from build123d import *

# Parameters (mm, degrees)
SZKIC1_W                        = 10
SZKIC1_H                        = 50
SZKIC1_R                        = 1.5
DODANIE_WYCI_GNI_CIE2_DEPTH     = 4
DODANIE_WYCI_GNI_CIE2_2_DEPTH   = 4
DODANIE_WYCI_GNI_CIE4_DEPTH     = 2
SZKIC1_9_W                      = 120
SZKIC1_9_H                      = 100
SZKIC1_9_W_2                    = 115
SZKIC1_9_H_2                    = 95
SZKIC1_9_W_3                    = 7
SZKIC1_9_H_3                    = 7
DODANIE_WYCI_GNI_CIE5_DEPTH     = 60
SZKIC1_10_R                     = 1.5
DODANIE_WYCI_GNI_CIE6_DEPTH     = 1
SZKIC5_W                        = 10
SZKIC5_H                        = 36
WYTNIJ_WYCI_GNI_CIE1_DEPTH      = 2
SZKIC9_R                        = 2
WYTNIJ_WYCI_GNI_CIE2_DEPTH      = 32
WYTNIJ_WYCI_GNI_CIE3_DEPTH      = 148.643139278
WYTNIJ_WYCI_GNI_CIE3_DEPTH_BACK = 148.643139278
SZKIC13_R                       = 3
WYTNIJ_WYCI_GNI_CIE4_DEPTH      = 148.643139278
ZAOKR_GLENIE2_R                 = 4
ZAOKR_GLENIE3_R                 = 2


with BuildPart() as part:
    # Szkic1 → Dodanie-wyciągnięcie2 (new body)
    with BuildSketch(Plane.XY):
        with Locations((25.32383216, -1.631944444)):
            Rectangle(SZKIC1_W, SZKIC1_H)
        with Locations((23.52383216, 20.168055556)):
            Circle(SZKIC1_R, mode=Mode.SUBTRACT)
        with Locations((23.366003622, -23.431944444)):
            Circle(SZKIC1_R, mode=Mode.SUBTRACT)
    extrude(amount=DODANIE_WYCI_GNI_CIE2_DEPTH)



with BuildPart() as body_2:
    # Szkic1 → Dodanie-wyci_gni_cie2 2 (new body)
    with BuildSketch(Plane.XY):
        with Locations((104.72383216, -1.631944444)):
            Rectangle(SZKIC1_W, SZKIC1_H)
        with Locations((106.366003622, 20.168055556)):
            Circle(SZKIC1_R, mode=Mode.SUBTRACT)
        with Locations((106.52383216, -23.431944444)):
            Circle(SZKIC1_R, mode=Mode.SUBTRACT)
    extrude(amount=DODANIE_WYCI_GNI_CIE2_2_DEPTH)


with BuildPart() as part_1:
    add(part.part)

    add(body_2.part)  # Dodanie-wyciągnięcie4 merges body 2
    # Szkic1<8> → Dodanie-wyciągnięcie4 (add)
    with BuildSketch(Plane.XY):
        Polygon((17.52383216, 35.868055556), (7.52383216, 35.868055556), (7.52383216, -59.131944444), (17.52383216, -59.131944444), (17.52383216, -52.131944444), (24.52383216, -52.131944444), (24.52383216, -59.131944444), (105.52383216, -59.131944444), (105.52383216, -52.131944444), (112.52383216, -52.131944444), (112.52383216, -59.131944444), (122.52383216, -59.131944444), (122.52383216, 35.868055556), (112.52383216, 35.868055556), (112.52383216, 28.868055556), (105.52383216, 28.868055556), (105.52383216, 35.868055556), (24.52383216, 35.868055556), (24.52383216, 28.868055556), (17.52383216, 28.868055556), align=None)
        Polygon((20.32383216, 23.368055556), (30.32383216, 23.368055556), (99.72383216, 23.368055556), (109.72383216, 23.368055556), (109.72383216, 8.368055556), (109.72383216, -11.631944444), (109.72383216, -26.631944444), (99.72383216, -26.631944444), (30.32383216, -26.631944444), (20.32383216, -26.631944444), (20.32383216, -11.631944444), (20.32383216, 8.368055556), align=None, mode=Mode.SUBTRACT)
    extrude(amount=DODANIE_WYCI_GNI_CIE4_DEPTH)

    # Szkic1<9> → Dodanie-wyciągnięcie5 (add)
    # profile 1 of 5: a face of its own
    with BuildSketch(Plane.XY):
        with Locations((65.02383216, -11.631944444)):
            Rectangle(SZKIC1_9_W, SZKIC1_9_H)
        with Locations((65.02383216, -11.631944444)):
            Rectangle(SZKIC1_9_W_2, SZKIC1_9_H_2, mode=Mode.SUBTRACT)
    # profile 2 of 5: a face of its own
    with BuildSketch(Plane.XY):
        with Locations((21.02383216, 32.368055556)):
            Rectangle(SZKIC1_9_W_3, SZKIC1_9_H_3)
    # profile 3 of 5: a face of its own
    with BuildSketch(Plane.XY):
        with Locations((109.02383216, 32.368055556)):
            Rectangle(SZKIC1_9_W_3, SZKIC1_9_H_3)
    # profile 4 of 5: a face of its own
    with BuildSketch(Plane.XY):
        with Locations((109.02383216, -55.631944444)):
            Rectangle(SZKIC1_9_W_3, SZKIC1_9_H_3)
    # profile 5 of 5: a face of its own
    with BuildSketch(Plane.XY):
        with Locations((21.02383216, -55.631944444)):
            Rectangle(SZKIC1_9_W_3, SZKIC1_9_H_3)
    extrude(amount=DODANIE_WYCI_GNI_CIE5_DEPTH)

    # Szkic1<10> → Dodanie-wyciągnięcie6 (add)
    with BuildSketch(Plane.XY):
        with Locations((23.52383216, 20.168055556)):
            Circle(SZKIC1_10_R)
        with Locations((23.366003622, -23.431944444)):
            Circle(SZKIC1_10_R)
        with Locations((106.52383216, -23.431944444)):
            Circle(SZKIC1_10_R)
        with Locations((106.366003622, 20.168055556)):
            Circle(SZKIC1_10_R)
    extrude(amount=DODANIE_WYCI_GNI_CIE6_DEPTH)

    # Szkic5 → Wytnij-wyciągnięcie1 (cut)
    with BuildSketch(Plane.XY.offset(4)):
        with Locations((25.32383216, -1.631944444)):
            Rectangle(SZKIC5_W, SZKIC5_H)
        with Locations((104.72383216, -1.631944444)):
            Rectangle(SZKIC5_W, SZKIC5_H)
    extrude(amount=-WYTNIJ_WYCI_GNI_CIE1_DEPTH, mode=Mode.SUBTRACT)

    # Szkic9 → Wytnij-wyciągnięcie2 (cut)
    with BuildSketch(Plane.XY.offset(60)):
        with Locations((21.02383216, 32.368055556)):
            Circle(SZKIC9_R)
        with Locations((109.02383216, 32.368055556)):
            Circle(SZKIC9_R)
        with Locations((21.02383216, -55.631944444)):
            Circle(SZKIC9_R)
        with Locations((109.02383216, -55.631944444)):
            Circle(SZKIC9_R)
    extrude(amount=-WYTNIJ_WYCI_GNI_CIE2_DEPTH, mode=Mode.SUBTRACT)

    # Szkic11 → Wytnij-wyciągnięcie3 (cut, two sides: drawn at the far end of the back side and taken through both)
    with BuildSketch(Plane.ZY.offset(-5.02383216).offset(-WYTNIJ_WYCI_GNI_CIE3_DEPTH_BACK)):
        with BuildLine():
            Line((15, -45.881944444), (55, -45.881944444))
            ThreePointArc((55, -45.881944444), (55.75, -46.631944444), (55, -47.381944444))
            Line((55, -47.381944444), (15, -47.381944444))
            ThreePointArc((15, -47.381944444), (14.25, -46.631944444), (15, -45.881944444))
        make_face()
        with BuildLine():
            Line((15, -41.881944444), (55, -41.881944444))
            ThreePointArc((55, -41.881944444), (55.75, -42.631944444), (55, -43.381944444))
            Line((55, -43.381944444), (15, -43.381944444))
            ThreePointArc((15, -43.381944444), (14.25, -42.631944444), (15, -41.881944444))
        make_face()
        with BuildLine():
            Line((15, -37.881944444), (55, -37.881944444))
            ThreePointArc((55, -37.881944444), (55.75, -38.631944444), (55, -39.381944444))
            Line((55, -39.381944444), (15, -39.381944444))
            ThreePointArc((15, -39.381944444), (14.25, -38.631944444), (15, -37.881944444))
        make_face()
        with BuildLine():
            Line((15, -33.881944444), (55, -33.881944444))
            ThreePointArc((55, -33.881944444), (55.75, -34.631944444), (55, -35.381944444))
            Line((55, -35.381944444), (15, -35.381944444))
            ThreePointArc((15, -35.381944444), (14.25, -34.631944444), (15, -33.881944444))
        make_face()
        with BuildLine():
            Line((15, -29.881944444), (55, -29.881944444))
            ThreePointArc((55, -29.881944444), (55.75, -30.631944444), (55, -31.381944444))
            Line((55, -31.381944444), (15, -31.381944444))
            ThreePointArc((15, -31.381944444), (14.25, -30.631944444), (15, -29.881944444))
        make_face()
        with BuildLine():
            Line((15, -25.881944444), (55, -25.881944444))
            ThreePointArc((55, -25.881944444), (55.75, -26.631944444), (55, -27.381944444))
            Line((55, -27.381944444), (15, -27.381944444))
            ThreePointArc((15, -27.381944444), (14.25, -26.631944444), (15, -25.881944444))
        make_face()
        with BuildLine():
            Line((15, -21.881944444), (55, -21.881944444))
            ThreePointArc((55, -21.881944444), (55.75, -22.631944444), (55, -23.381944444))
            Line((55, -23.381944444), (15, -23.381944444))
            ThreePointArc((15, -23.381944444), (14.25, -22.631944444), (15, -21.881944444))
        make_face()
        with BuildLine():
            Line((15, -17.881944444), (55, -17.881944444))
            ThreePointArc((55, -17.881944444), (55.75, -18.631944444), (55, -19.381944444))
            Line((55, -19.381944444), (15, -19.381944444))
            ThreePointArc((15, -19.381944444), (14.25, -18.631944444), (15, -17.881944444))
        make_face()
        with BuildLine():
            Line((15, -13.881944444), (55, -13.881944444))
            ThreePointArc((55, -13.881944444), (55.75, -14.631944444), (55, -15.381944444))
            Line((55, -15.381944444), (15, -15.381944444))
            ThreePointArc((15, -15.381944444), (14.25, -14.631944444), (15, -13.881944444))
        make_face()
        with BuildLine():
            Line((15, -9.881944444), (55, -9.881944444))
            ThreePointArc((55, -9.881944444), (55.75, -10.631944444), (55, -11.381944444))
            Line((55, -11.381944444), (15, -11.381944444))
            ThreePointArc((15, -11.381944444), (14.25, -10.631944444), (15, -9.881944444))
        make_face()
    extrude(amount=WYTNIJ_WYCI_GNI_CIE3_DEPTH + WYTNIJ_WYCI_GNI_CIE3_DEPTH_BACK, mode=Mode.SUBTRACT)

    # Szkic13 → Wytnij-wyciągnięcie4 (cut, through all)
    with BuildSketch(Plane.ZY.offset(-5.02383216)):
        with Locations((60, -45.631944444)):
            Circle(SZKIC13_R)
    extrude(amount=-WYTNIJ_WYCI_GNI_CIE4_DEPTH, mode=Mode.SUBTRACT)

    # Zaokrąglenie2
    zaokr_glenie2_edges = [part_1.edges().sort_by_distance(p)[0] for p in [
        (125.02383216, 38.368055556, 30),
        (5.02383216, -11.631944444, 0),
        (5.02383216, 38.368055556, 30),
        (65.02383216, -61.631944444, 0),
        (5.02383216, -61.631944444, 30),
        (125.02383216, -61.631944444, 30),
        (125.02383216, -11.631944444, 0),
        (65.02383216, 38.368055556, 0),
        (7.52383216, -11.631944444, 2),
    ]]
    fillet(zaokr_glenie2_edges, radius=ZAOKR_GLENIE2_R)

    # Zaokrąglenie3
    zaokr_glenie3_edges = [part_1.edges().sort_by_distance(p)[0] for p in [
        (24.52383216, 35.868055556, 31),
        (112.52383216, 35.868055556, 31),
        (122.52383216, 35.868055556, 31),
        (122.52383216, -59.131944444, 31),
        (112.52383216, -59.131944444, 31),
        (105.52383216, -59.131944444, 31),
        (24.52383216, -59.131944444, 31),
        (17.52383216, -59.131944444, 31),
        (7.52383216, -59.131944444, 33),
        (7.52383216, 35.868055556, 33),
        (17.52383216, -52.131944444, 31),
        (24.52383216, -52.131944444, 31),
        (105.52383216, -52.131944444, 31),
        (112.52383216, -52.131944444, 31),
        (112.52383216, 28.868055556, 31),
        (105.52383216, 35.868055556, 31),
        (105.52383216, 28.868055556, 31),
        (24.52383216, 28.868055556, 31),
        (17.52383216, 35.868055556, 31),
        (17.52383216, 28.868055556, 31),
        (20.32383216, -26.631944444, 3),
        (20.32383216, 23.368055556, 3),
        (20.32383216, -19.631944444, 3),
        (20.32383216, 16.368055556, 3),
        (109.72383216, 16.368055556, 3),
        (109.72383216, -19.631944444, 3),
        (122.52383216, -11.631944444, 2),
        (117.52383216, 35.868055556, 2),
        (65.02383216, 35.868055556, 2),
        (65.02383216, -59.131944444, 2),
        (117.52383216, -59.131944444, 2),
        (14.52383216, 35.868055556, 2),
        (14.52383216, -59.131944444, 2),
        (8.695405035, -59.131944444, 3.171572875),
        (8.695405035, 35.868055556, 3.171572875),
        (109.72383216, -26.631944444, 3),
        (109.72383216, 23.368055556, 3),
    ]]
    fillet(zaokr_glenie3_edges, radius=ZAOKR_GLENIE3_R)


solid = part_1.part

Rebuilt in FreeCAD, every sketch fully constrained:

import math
import FreeCAD as App
import Part
import Sketcher
from FreeCAD import Vector
Q = App.Units.Quantity


def edges_at(feature, points):
    """Names of the edges that pass closest to the given points."""
    edges = feature.Shape.Edges
    near = lambda p: min(range(len(edges)), key=lambda i: edges[i].distToShape(Part.Vertex(*p))[0])
    return sorted({f"Edge{near(p) + 1}" for p in points})

doc = App.newDocument("Part")
body = doc.addObject("PartDesign::Body", "Body")

sketch1 = doc.addObject("Sketcher::SketchObject", "Sketch")
body.addObject(sketch1)
sketch1.AttachmentSupport = (doc.XY_Plane, [""])
sketch1.MapMode = "FlatFace"
sketch1.addGeometry(Part.LineSegment(Vector(20.3, 23.4, 0), Vector(20.3, -26.6, 0)), False)
sketch1.addGeometry(Part.LineSegment(Vector(20.3, -26.6, 0), Vector(30.3, -26.6, 0)), False)
sketch1.addGeometry(Part.LineSegment(Vector(30.3, -26.6, 0), Vector(30.3, 23.4, 0)), False)
sketch1.addGeometry(Part.LineSegment(Vector(30.3, 23.4, 0), Vector(20.3, 23.4, 0)), False)
sketch1.addGeometry(Part.Circle(Vector(23.4, -23.4, 0), Vector(0, 0, 1), 1.5), False)
sketch1.addGeometry(Part.Circle(Vector(23.5, 20.2, 0), Vector(0, 0, 1), 1.5), False)
sketch1.addConstraint(Sketcher.Constraint("Coincident", 0, 2, 1, 1))
sketch1.addConstraint(Sketcher.Constraint("Coincident", 1, 2, 2, 1))
sketch1.addConstraint(Sketcher.Constraint("Coincident", 2, 2, 3, 1))
sketch1.addConstraint(Sketcher.Constraint("Coincident", 3, 2, 0, 1))
sketch1.addConstraint(Sketcher.Constraint("Vertical", 0))
sketch1.addConstraint(Sketcher.Constraint("Horizontal", 1))
sketch1.addConstraint(Sketcher.Constraint("Vertical", 2))
sketch1.addConstraint(Sketcher.Constraint("Horizontal", 3))
sketch1.addConstraint(Sketcher.Constraint("Equal", 4, 5))
sketch1.addConstraint(Sketcher.Constraint("Diameter", 4, Q("3 mm")))
sketch1.addConstraint(Sketcher.Constraint("DistanceX", 1, 1, 1, 2, Q("10 mm")))
sketch1.addConstraint(Sketcher.Constraint("DistanceY", 0, 2, 0, 1, Q("50 mm")))
sketch1.addConstraint(Sketcher.Constraint("DistanceY", 4, 3, 5, 3, Q("43.6 mm")))
sketch1.addConstraint(Sketcher.Constraint("DistanceY", 0, 2, 4, 3, Q("3.2 mm")))
sketch1.addConstraint(Sketcher.Constraint("DistanceX", 0, 2, 5, 3, Q("3.2 mm")))
sketch1.addConstraint(Sketcher.Constraint("DistanceX", 4, 3, 5, 3, Q("0.157829 mm")))
sketch1.addConstraint(Sketcher.Constraint("DistanceX", -1, 1, 4, 3, Q("23.366004 mm")))
sketch1.addConstraint(Sketcher.Constraint("DistanceY", 4, 3, -1, 1, Q("23.431944 mm")))
pad1 = doc.addObject("PartDesign::Pad", "Pad")
body.addObject(pad1)
pad1.Profile = sketch1
pad1.Length = 4
body2 = doc.addObject("PartDesign::Body", "Body001")

sketch2 = doc.addObject("Sketcher::SketchObject", "Sketch001")
body2.addObject(sketch2)
sketch2.AttachmentSupport = (doc.getObject("XY_Plane001"), [""])
sketch2.MapMode = "FlatFace"
sketch2.addGeometry(Part.LineSegment(Vector(99.7, 23.4, 0), Vector(99.7, -26.6, 0)), False)
sketch2.addGeometry(Part.LineSegment(Vector(99.7, -26.6, 0), Vector(109.7, -26.6, 0)), False)
sketch2.addGeometry(Part.LineSegment(Vector(109.7, -26.6, 0), Vector(109.7, 23.4, 0)), False)
sketch2.addGeometry(Part.LineSegment(Vector(109.7, 23.4, 0), Vector(99.7, 23.4, 0)), False)
sketch2.addGeometry(Part.Circle(Vector(106.5, -23.4, 0), Vector(0, 0, 1), 1.5), False)
sketch2.addGeometry(Part.Circle(Vector(106.4, 20.2, 0), Vector(0, 0, 1), 1.5), False)
sketch2.addConstraint(Sketcher.Constraint("Coincident", 0, 2, 1, 1))
sketch2.addConstraint(Sketcher.Constraint("Coincident", 1, 2, 2, 1))
sketch2.addConstraint(Sketcher.Constraint("Coincident", 2, 2, 3, 1))
sketch2.addConstraint(Sketcher.Constraint("Coincident", 3, 2, 0, 1))
sketch2.addConstraint(Sketcher.Constraint("Vertical", 0))
sketch2.addConstraint(Sketcher.Constraint("Horizontal", 1))
sketch2.addConstraint(Sketcher.Constraint("Vertical", 2))
sketch2.addConstraint(Sketcher.Constraint("Horizontal", 3))
sketch2.addConstraint(Sketcher.Constraint("Equal", 4, 5))
sketch2.addConstraint(Sketcher.Constraint("Diameter", 4, Q("3 mm")))
sketch2.addConstraint(Sketcher.Constraint("DistanceX", 1, 1, 1, 2, Q("10 mm")))
sketch2.addConstraint(Sketcher.Constraint("DistanceY", 0, 2, 0, 1, Q("50 mm")))
sketch2.addConstraint(Sketcher.Constraint("DistanceY", 4, 3, 5, 3, Q("43.6 mm")))
sketch2.addConstraint(Sketcher.Constraint("DistanceX", 0, 2, 4, 3, Q("6.8 mm")))
sketch2.addConstraint(Sketcher.Constraint("DistanceY", 0, 2, 4, 3, Q("3.2 mm")))
sketch2.addConstraint(Sketcher.Constraint("DistanceX", 5, 3, 4, 3, Q("0.157829 mm")))
sketch2.addConstraint(Sketcher.Constraint("DistanceX", -1, 1, 4, 3, Q("106.523832 mm")))
sketch2.addConstraint(Sketcher.Constraint("DistanceY", 4, 3, -1, 1, Q("23.431944 mm")))
pad2 = doc.addObject("PartDesign::Pad", "Pad001")
body2.addObject(pad2)
pad2.Profile = sketch2
pad2.Length = 4
body.AllowCompound = True
doc.recompute()

boolean = doc.addObject("PartDesign::Boolean", "Boolean")
body.addObject(boolean)
boolean.Type = "Fuse"
boolean.addObjects([body2])

sketch3 = doc.addObject("Sketcher::SketchObject", "Sketch002")
body.addObject(sketch3)
sketch3.AttachmentSupport = (doc.XY_Plane, [""])
sketch3.MapMode = "FlatFace"
sketch3.addGeometry(Part.LineSegment(Vector(18, 36, 0), Vector(8, 36, 0)), False)
sketch3.addGeometry(Part.LineSegment(Vector(8, 36, 0), Vector(8, -59, 0)), False)
sketch3.addGeometry(Part.LineSegment(Vector(8, -59, 0), Vector(18, -59, 0)), False)
sketch3.addGeometry(Part.LineSegment(Vector(18, -59, 0), Vector(18, -52, 0)), False)
sketch3.addGeometry(Part.LineSegment(Vector(18, -52, 0), Vector(25, -52, 0)), False)
sketch3.addGeometry(Part.LineSegment(Vector(25, -52, 0), Vector(25, -59, 0)), False)
sketch3.addGeometry(Part.LineSegment(Vector(25, -59, 0), Vector(106, -59, 0)), False)
sketch3.addGeometry(Part.LineSegment(Vector(106, -59, 0), Vector(106, -52, 0)), False)
sketch3.addGeometry(Part.LineSegment(Vector(106, -52, 0), Vector(113, -52, 0)), False)
sketch3.addGeometry(Part.LineSegment(Vector(113, -52, 0), Vector(113, -59, 0)), False)
sketch3.addGeometry(Part.LineSegment(Vector(113, -59, 0), Vector(123, -59, 0)), False)
sketch3.addGeometry(Part.LineSegment(Vector(123, -59, 0), Vector(123, 36, 0)), False)
sketch3.addGeometry(Part.LineSegment(Vector(123, 36, 0), Vector(113, 36, 0)), False)
sketch3.addGeometry(Part.LineSegment(Vector(113, 36, 0), Vector(113, 29, 0)), False)
sketch3.addGeometry(Part.LineSegment(Vector(113, 29, 0), Vector(106, 29, 0)), False)
sketch3.addGeometry(Part.LineSegment(Vector(106, 29, 0), Vector(106, 36, 0)), False)
sketch3.addGeometry(Part.LineSegment(Vector(106, 36, 0), Vector(25, 36, 0)), False)
sketch3.addGeometry(Part.LineSegment(Vector(25, 36, 0), Vector(25, 29, 0)), False)
sketch3.addGeometry(Part.LineSegment(Vector(25, 29, 0), Vector(18, 29, 0)), False)
sketch3.addGeometry(Part.LineSegment(Vector(18, 29, 0), Vector(18, 36, 0)), False)
sketch3.addGeometry(Part.LineSegment(Vector(20, -27, 0), Vector(20, 23, 0)), False)
sketch3.addGeometry(Part.LineSegment(Vector(20, 23, 0), Vector(110, 23, 0)), False)
sketch3.addGeometry(Part.LineSegment(Vector(110, 23, 0), Vector(110, -27, 0)), False)
sketch3.addGeometry(Part.LineSegment(Vector(110, -27, 0), Vector(20, -27, 0)), False)
sketch3.addConstraint(Sketcher.Constraint("Coincident", 0, 2, 1, 1))
sketch3.addConstraint(Sketcher.Constraint("Coincident", 1, 2, 2, 1))
sketch3.addConstraint(Sketcher.Constraint("Coincident", 2, 2, 3, 1))
sketch3.addConstraint(Sketcher.Constraint("Coincident", 3, 2, 4, 1))
sketch3.addConstraint(Sketcher.Constraint("Coincident", 4, 2, 5, 1))
sketch3.addConstraint(Sketcher.Constraint("Coincident", 5, 2, 6, 1))
sketch3.addConstraint(Sketcher.Constraint("Coincident", 6, 2, 7, 1))
sketch3.addConstraint(Sketcher.Constraint("Coincident", 7, 2, 8, 1))
sketch3.addConstraint(Sketcher.Constraint("Coincident", 8, 2, 9, 1))
sketch3.addConstraint(Sketcher.Constraint("Coincident", 9, 2, 10, 1))
sketch3.addConstraint(Sketcher.Constraint("Coincident", 10, 2, 11, 1))
sketch3.addConstraint(Sketcher.Constraint("Coincident", 11, 2, 12, 1))
sketch3.addConstraint(Sketcher.Constraint("Coincident", 12, 2, 13, 1))
sketch3.addConstraint(Sketcher.Constraint("Coincident", 13, 2, 14, 1))
sketch3.addConstraint(Sketcher.Constraint("Coincident", 14, 2, 15, 1))
sketch3.addConstraint(Sketcher.Constraint("Coincident", 15, 2, 16, 1))
sketch3.addConstraint(Sketcher.Constraint("Coincident", 16, 2, 17, 1))
sketch3.addConstraint(Sketcher.Constraint("Coincident", 17, 2, 18, 1))
sketch3.addConstraint(Sketcher.Constraint("Coincident", 18, 2, 19, 1))
sketch3.addConstraint(Sketcher.Constraint("Coincident", 19, 2, 0, 1))
sketch3.addConstraint(Sketcher.Constraint("Coincident", 20, 2, 21, 1))
sketch3.addConstraint(Sketcher.Constraint("Coincident", 21, 2, 22, 1))
sketch3.addConstraint(Sketcher.Constraint("Coincident", 22, 2, 23, 1))
sketch3.addConstraint(Sketcher.Constraint("Coincident", 23, 2, 20, 1))
sketch3.addConstraint(Sketcher.Constraint("Horizontal", 0))
sketch3.addConstraint(Sketcher.Constraint("Vertical", 1))
sketch3.addConstraint(Sketcher.Constraint("Horizontal", 2))
sketch3.addConstraint(Sketcher.Constraint("Vertical", 3))
sketch3.addConstraint(Sketcher.Constraint("Horizontal", 4))
sketch3.addConstraint(Sketcher.Constraint("Vertical", 5))
sketch3.addConstraint(Sketcher.Constraint("Horizontal", 6))
sketch3.addConstraint(Sketcher.Constraint("Vertical", 7))
sketch3.addConstraint(Sketcher.Constraint("Horizontal", 8))
sketch3.addConstraint(Sketcher.Constraint("Vertical", 9))
sketch3.addConstraint(Sketcher.Constraint("Horizontal", 10))
sketch3.addConstraint(Sketcher.Constraint("Vertical", 11))
sketch3.addConstraint(Sketcher.Constraint("Horizontal", 12))
sketch3.addConstraint(Sketcher.Constraint("Vertical", 13))
sketch3.addConstraint(Sketcher.Constraint("Horizontal", 14))
sketch3.addConstraint(Sketcher.Constraint("Vertical", 15))
sketch3.addConstraint(Sketcher.Constraint("Horizontal", 16))
sketch3.addConstraint(Sketcher.Constraint("Vertical", 17))
sketch3.addConstraint(Sketcher.Constraint("Horizontal", 18))
sketch3.addConstraint(Sketcher.Constraint("Vertical", 19))
sketch3.addConstraint(Sketcher.Constraint("Vertical", 20))
sketch3.addConstraint(Sketcher.Constraint("Horizontal", 21))
sketch3.addConstraint(Sketcher.Constraint("Vertical", 22))
sketch3.addConstraint(Sketcher.Constraint("Horizontal", 23))
sketch3.addConstraint(Sketcher.Constraint("Horizontal", 2, 2, 5, 2))
sketch3.addConstraint(Sketcher.Constraint("Horizontal", 4, 2, 7, 2))
sketch3.addConstraint(Sketcher.Constraint("Horizontal", 6, 2, 9, 2))
sketch3.addConstraint(Sketcher.Constraint("Horizontal", 0, 2, 11, 2))
sketch3.addConstraint(Sketcher.Constraint("Horizontal", 12, 2, 15, 2))
sketch3.addConstraint(Sketcher.Constraint("Horizontal", 14, 2, 17, 2))
sketch3.addConstraint(Sketcher.Constraint("Vertical", 9, 2, 12, 2))
sketch3.addConstraint(Sketcher.Constraint("Vertical", 7, 2, 14, 2))
sketch3.addConstraint(Sketcher.Constraint("Vertical", 5, 2, 16, 2))
sketch3.addConstraint(Sketcher.Constraint("Vertical", 3, 2, 18, 2))
sketch3.addConstraint(Sketcher.Constraint("Equal", 4, 8))
sketch3.addConstraint(Sketcher.Constraint("Equal", 2, 10))
sketch3.addConstraint(Sketcher.Constraint("Equal", 18, 3))
sketch3.addConstraint(Sketcher.Constraint("Equal", 9, 13))
sketch3.addConstraint(Sketcher.Constraint("DistanceX", 0, 2, 0, 1, Q("10 mm")))
sketch3.addConstraint(Sketcher.Constraint("DistanceX", 4, 1, 4, 2, Q("7 mm")))
sketch3.addConstraint(Sketcher.Constraint("DistanceX", 6, 1, 6, 2, Q("81 mm")))
sketch3.addConstraint(Sketcher.Constraint("DistanceY", 1, 2, 1, 1, Q("95 mm")))
sketch3.addConstraint(Sketcher.Constraint("DistanceY", 20, 1, 20, 2, Q("50 mm")))
sketch3.addConstraint(Sketcher.Constraint("DistanceX", 21, 1, 21, 2, Q("89.4 mm")))
sketch3.addConstraint(Sketcher.Constraint("DistanceX", 18, 2, 20, 2, Q("2.8 mm")))
sketch3.addConstraint(Sketcher.Constraint("DistanceY", 20, 2, 18, 2, Q("5.5 mm")))
sketch3.addConstraint(Sketcher.Constraint("DistanceX", -1, 1, 0, 2, Q("7.523832 mm")))
sketch3.addConstraint(Sketcher.Constraint("DistanceY", -1, 1, 0, 2, Q("35.868056 mm")))
pad3 = doc.addObject("PartDesign::Pad", "Pad002")
body.addObject(pad3)
pad3.Profile = sketch3
pad3.Length = 2

sketch4 = doc.addObject("Sketcher::SketchObject", "Sketch003")
body.addObject(sketch4)
sketch4.AttachmentSupport = (doc.XY_Plane, [""])
sketch4.MapMode = "FlatFace"
sketch4.addGeometry(Part.LineSegment(Vector(5, 38, 0), Vector(5, -62, 0)), False)
sketch4.addGeometry(Part.LineSegment(Vector(5, -62, 0), Vector(125, -62, 0)), False)
sketch4.addGeometry(Part.LineSegment(Vector(125, -62, 0), Vector(125, 38, 0)), False)
sketch4.addGeometry(Part.LineSegment(Vector(125, 38, 0), Vector(5, 38, 0)), False)
sketch4.addGeometry(Part.LineSegment(Vector(18, -59, 0), Vector(8, -59, 0)), False)
sketch4.addGeometry(Part.LineSegment(Vector(8, -59, 0), Vector(8, 36, 0)), False)
sketch4.addGeometry(Part.LineSegment(Vector(8, 36, 0), Vector(18, 36, 0)), False)
sketch4.addGeometry(Part.LineSegment(Vector(18, 36, 0), Vector(18, 29, 0)), False)
sketch4.addGeometry(Part.LineSegment(Vector(18, 29, 0), Vector(25, 29, 0)), False)
sketch4.addGeometry(Part.LineSegment(Vector(25, 29, 0), Vector(25, 36, 0)), False)
sketch4.addGeometry(Part.LineSegment(Vector(25, 36, 0), Vector(106, 36, 0)), False)
sketch4.addGeometry(Part.LineSegment(Vector(106, 36, 0), Vector(106, 29, 0)), False)
sketch4.addGeometry(Part.LineSegment(Vector(106, 29, 0), Vector(113, 29, 0)), False)
sketch4.addGeometry(Part.LineSegment(Vector(113, 29, 0), Vector(113, 36, 0)), False)
sketch4.addGeometry(Part.LineSegment(Vector(113, 36, 0), Vector(123, 36, 0)), False)
sketch4.addGeometry(Part.LineSegment(Vector(123, 36, 0), Vector(123, -59, 0)), False)
sketch4.addGeometry(Part.LineSegment(Vector(123, -59, 0), Vector(113, -59, 0)), False)
sketch4.addGeometry(Part.LineSegment(Vector(113, -59, 0), Vector(113, -52, 0)), False)
sketch4.addGeometry(Part.LineSegment(Vector(113, -52, 0), Vector(106, -52, 0)), False)
sketch4.addGeometry(Part.LineSegment(Vector(106, -52, 0), Vector(106, -59, 0)), False)
sketch4.addGeometry(Part.LineSegment(Vector(106, -59, 0), Vector(25, -59, 0)), False)
sketch4.addGeometry(Part.LineSegment(Vector(25, -59, 0), Vector(25, -52, 0)), False)
sketch4.addGeometry(Part.LineSegment(Vector(25, -52, 0), Vector(18, -52, 0)), False)
sketch4.addGeometry(Part.LineSegment(Vector(18, -52, 0), Vector(18, -59, 0)), False)
sketch4.addConstraint(Sketcher.Constraint("Coincident", 0, 2, 1, 1))
sketch4.addConstraint(Sketcher.Constraint("Coincident", 1, 2, 2, 1))
sketch4.addConstraint(Sketcher.Constraint("Coincident", 2, 2, 3, 1))
sketch4.addConstraint(Sketcher.Constraint("Coincident", 3, 2, 0, 1))
sketch4.addConstraint(Sketcher.Constraint("Coincident", 4, 2, 5, 1))
sketch4.addConstraint(Sketcher.Constraint("Coincident", 5, 2, 6, 1))
sketch4.addConstraint(Sketcher.Constraint("Coincident", 6, 2, 7, 1))
sketch4.addConstraint(Sketcher.Constraint("Coincident", 7, 2, 8, 1))
sketch4.addConstraint(Sketcher.Constraint("Coincident", 8, 2, 9, 1))
sketch4.addConstraint(Sketcher.Constraint("Coincident", 9, 2, 10, 1))
sketch4.addConstraint(Sketcher.Constraint("Coincident", 10, 2, 11, 1))
sketch4.addConstraint(Sketcher.Constraint("Coincident", 11, 2, 12, 1))
sketch4.addConstraint(Sketcher.Constraint("Coincident", 12, 2, 13, 1))
sketch4.addConstraint(Sketcher.Constraint("Coincident", 13, 2, 14, 1))
sketch4.addConstraint(Sketcher.Constraint("Coincident", 14, 2, 15, 1))
sketch4.addConstraint(Sketcher.Constraint("Coincident", 15, 2, 16, 1))
sketch4.addConstraint(Sketcher.Constraint("Coincident", 16, 2, 17, 1))
sketch4.addConstraint(Sketcher.Constraint("Coincident", 17, 2, 18, 1))
sketch4.addConstraint(Sketcher.Constraint("Coincident", 18, 2, 19, 1))
sketch4.addConstraint(Sketcher.Constraint("Coincident", 19, 2, 20, 1))
sketch4.addConstraint(Sketcher.Constraint("Coincident", 20, 2, 21, 1))
sketch4.addConstraint(Sketcher.Constraint("Coincident", 21, 2, 22, 1))
sketch4.addConstraint(Sketcher.Constraint("Coincident", 22, 2, 23, 1))
sketch4.addConstraint(Sketcher.Constraint("Coincident", 23, 2, 4, 1))
sketch4.addConstraint(Sketcher.Constraint("Vertical", 0))
sketch4.addConstraint(Sketcher.Constraint("Horizontal", 1))
sketch4.addConstraint(Sketcher.Constraint("Vertical", 2))
sketch4.addConstraint(Sketcher.Constraint("Horizontal", 3))
sketch4.addConstraint(Sketcher.Constraint("Horizontal", 4))
sketch4.addConstraint(Sketcher.Constraint("Vertical", 5))
sketch4.addConstraint(Sketcher.Constraint("Horizontal", 6))
sketch4.addConstraint(Sketcher.Constraint("Vertical", 7))
sketch4.addConstraint(Sketcher.Constraint("Horizontal", 8))
sketch4.addConstraint(Sketcher.Constraint("Vertical", 9))
sketch4.addConstraint(Sketcher.Constraint("Horizontal", 10))
sketch4.addConstraint(Sketcher.Constraint("Vertical", 11))
sketch4.addConstraint(Sketcher.Constraint("Horizontal", 12))
sketch4.addConstraint(Sketcher.Constraint("Vertical", 13))
sketch4.addConstraint(Sketcher.Constraint("Horizontal", 14))
sketch4.addConstraint(Sketcher.Constraint("Vertical", 15))
sketch4.addConstraint(Sketcher.Constraint("Horizontal", 16))
sketch4.addConstraint(Sketcher.Constraint("Vertical", 17))
sketch4.addConstraint(Sketcher.Constraint("Horizontal", 18))
sketch4.addConstraint(Sketcher.Constraint("Vertical", 19))
sketch4.addConstraint(Sketcher.Constraint("Horizontal", 20))
sketch4.addConstraint(Sketcher.Constraint("Vertical", 21))
sketch4.addConstraint(Sketcher.Constraint("Horizontal", 22))
sketch4.addConstraint(Sketcher.Constraint("Vertical", 23))
sketch4.addConstraint(Sketcher.Constraint("Horizontal", 6, 2, 9, 2))
sketch4.addConstraint(Sketcher.Constraint("Horizontal", 8, 2, 11, 2))
sketch4.addConstraint(Sketcher.Constraint("Horizontal", 10, 2, 13, 2))
sketch4.addConstraint(Sketcher.Constraint("Horizontal", 4, 2, 15, 2))
sketch4.addConstraint(Sketcher.Constraint("Horizontal", 16, 2, 19, 2))
sketch4.addConstraint(Sketcher.Constraint("Horizontal", 18, 2, 21, 2))
sketch4.addConstraint(Sketcher.Constraint("Vertical", 13, 2, 16, 2))
sketch4.addConstraint(Sketcher.Constraint("Vertical", 11, 2, 18, 2))
sketch4.addConstraint(Sketcher.Constraint("Vertical", 9, 2, 20, 2))
sketch4.addConstraint(Sketcher.Constraint("Vertical", 7, 2, 22, 2))
sketch4.addConstraint(Sketcher.Constraint("Equal", 8, 12))
sketch4.addConstraint(Sketcher.Constraint("Equal", 6, 14))
sketch4.addConstraint(Sketcher.Constraint("Equal", 22, 7))
sketch4.addConstraint(Sketcher.Constraint("Equal", 13, 17))
sketch4.addConstraint(Sketcher.Constraint("DistanceX", 1, 1, 1, 2, Q("120 mm")))
sketch4.addConstraint(Sketcher.Constraint("DistanceX", 4, 2, 4, 1, Q("10 mm")))
sketch4.addConstraint(Sketcher.Constraint("DistanceX", 8, 1, 8, 2, Q("7 mm")))
sketch4.addConstraint(Sketcher.Constraint("DistanceX", 10, 1, 10, 2, Q("81 mm")))
sketch4.addConstraint(Sketcher.Constraint("DistanceY", 0, 2, 0, 1, Q("100 mm")))
sketch4.addConstraint(Sketcher.Constraint("DistanceY", 5, 1, 5, 2, Q("95 mm")))
sketch4.addConstraint(Sketcher.Constraint("DistanceX", 0, 2, 4, 2, Q("2.5 mm")))
sketch4.addConstraint(Sketcher.Constraint("DistanceY", 0, 2, 4, 2, Q("2.5 mm")))
sketch4.addConstraint(Sketcher.Constraint("DistanceX", -1, 1, 0, 2, Q("5.023832 mm")))
sketch4.addConstraint(Sketcher.Constraint("DistanceY", 0, 2, -1, 1, Q("61.631944 mm")))
pad4 = doc.addObject("PartDesign::Pad", "Pad003")
body.addObject(pad4)
pad4.Profile = sketch4
pad4.Length = 60

sketch5 = doc.addObject("Sketcher::SketchObject", "Sketch004")
body.addObject(sketch5)
sketch5.AttachmentSupport = (doc.XY_Plane, [""])
sketch5.MapMode = "FlatFace"
sketch5.addGeometry(Part.Circle(Vector(23.5, 20.2, 0), Vector(0, 0, 1), 1.5), False)
sketch5.addGeometry(Part.Circle(Vector(23.4, -23.4, 0), Vector(0, 0, 1), 1.5), False)
sketch5.addGeometry(Part.Circle(Vector(106.5, -23.4, 0), Vector(0, 0, 1), 1.5), False)
sketch5.addGeometry(Part.Circle(Vector(106.4, 20.2, 0), Vector(0, 0, 1), 1.5), False)
sketch5.addConstraint(Sketcher.Constraint("Equal", 0, 1))
sketch5.addConstraint(Sketcher.Constraint("Equal", 1, 2))
sketch5.addConstraint(Sketcher.Constraint("Equal", 2, 3))
sketch5.addConstraint(Sketcher.Constraint("Horizontal", 1, 3, 2, 3))
sketch5.addConstraint(Sketcher.Constraint("Horizontal", 0, 3, 3, 3))
sketch5.addConstraint(Sketcher.Constraint("Diameter", 0, Q("3 mm")))
sketch5.addConstraint(Sketcher.Constraint("DistanceX", 0, 3, 2, 3, Q("83 mm")))
sketch5.addConstraint(Sketcher.Constraint("DistanceX", 1, 3, 3, 3, Q("83 mm")))
sketch5.addConstraint(Sketcher.Constraint("DistanceY", 1, 3, 0, 3, Q("43.6 mm")))
sketch5.addConstraint(Sketcher.Constraint("DistanceX", 1, 3, 0, 3, Q("0.157829 mm")))
sketch5.addConstraint(Sketcher.Constraint("DistanceX", -1, 1, 0, 3, Q("23.523832 mm")))
sketch5.addConstraint(Sketcher.Constraint("DistanceY", -1, 1, 0, 3, Q("20.168056 mm")))
pad5 = doc.addObject("PartDesign::Pad", "Pad004")
body.addObject(pad5)
pad5.Profile = sketch5
pad5.Length = 1

sketch6 = doc.addObject("Sketcher::SketchObject", "Sketch005")
body.addObject(sketch6)
sketch6.AttachmentSupport = (doc.XY_Plane, [""])
sketch6.MapMode = "FlatFace"
sketch6.AttachmentOffset = App.Placement(Vector(0, 0, 4), App.Rotation())
sketch6.addGeometry(Part.LineSegment(Vector(20, 16, 0), Vector(20, -20, 0)), False)
sketch6.addGeometry(Part.LineSegment(Vector(20, -20, 0), Vector(30, -20, 0)), False)
sketch6.addGeometry(Part.LineSegment(Vector(30, -20, 0), Vector(30, 16, 0)), False)
sketch6.addGeometry(Part.LineSegment(Vector(30, 16, 0), Vector(20, 16, 0)), False)
sketch6.addGeometry(Part.LineSegment(Vector(100, 16, 0), Vector(100, -20, 0)), False)
sketch6.addGeometry(Part.LineSegment(Vector(100, -20, 0), Vector(110, -20, 0)), False)
sketch6.addGeometry(Part.LineSegment(Vector(110, -20, 0), Vector(110, 16, 0)), False)
sketch6.addGeometry(Part.LineSegment(Vector(110, 16, 0), Vector(100, 16, 0)), False)
sketch6.addConstraint(Sketcher.Constraint("Coincident", 0, 2, 1, 1))
sketch6.addConstraint(Sketcher.Constraint("Coincident", 1, 2, 2, 1))
sketch6.addConstraint(Sketcher.Constraint("Coincident", 2, 2, 3, 1))
sketch6.addConstraint(Sketcher.Constraint("Coincident", 3, 2, 0, 1))
sketch6.addConstraint(Sketcher.Constraint("Coincident", 4, 2, 5, 1))
sketch6.addConstraint(Sketcher.Constraint("Coincident", 5, 2, 6, 1))
sketch6.addConstraint(Sketcher.Constraint("Coincident", 6, 2, 7, 1))
sketch6.addConstraint(Sketcher.Constraint("Coincident", 7, 2, 4, 1))
sketch6.addConstraint(Sketcher.Constraint("Vertical", 0))
sketch6.addConstraint(Sketcher.Constraint("Horizontal", 1))
sketch6.addConstraint(Sketcher.Constraint("Vertical", 2))
sketch6.addConstraint(Sketcher.Constraint("Horizontal", 3))
sketch6.addConstraint(Sketcher.Constraint("Vertical", 4))
sketch6.addConstraint(Sketcher.Constraint("Horizontal", 5))
sketch6.addConstraint(Sketcher.Constraint("Vertical", 6))
sketch6.addConstraint(Sketcher.Constraint("Horizontal", 7))
sketch6.addConstraint(Sketcher.Constraint("Horizontal", 1, 2, 4, 2))
sketch6.addConstraint(Sketcher.Constraint("Horizontal", 3, 2, 6, 2))
sketch6.addConstraint(Sketcher.Constraint("Equal", 3, 5))
sketch6.addConstraint(Sketcher.Constraint("DistanceX", 1, 1, 1, 2, Q("10 mm")))
sketch6.addConstraint(Sketcher.Constraint("DistanceY", 0, 2, 0, 1, Q("36 mm")))
sketch6.addConstraint(Sketcher.Constraint("DistanceX", 1, 2, 4, 2, Q("69.4 mm")))
sketch6.addConstraint(Sketcher.Constraint("DistanceX", -1, 1, 0, 2, Q("20.323832 mm")))
sketch6.addConstraint(Sketcher.Constraint("DistanceY", 0, 2, -1, 1, Q("19.631944 mm")))
pocket1 = doc.addObject("PartDesign::Pocket", "Pocket")
body.addObject(pocket1)
pocket1.Profile = sketch6
pocket1.Length = 2

sketch7 = doc.addObject("Sketcher::SketchObject", "Sketch006")
body.addObject(sketch7)
sketch7.AttachmentSupport = (doc.XY_Plane, [""])
sketch7.MapMode = "FlatFace"
sketch7.AttachmentOffset = App.Placement(Vector(0, 0, 60), App.Rotation())
sketch7.addGeometry(Part.Circle(Vector(21, 32.4, 0), Vector(0, 0, 1), 2), False)
sketch7.addGeometry(Part.Circle(Vector(109, 32.4, 0), Vector(0, 0, 1), 2), False)
sketch7.addGeometry(Part.Circle(Vector(21, -55.6, 0), Vector(0, 0, 1), 2), False)
sketch7.addGeometry(Part.Circle(Vector(109, -55.6, 0), Vector(0, 0, 1), 2), False)
sketch7.addConstraint(Sketcher.Constraint("Equal", 0, 1))
sketch7.addConstraint(Sketcher.Constraint("Equal", 1, 2))
sketch7.addConstraint(Sketcher.Constraint("Equal", 2, 3))
sketch7.addConstraint(Sketcher.Constraint("Horizontal", 0, 3, 1, 3))
sketch7.addConstraint(Sketcher.Constraint("Horizontal", 2, 3, 3, 3))
sketch7.addConstraint(Sketcher.Constraint("Vertical", 0, 3, 2, 3))
sketch7.addConstraint(Sketcher.Constraint("Vertical", 1, 3, 3, 3))
sketch7.addConstraint(Sketcher.Constraint("Diameter", 0, Q("4 mm")))
sketch7.addConstraint(Sketcher.Constraint("DistanceX", 0, 3, 1, 3, Q("88 mm")))
sketch7.addConstraint(Sketcher.Constraint("DistanceY", 2, 3, 0, 3, Q("88 mm")))
sketch7.addConstraint(Sketcher.Constraint("DistanceX", -1, 1, 0, 3, Q("21.023832 mm")))
sketch7.addConstraint(Sketcher.Constraint("DistanceY", -1, 1, 0, 3, Q("32.368056 mm")))
pocket2 = doc.addObject("PartDesign::Pocket", "Pocket001")
body.addObject(pocket2)
pocket2.Profile = sketch7
pocket2.Length = 32

sketch8 = doc.addObject("Sketcher::SketchObject", "Sketch007")
body.addObject(sketch8)
sketch8.AttachmentSupport = (doc.YZ_Plane, [""])
sketch8.MapMode = "FlatFace"
sketch8.AttachmentOffset = App.Placement(Vector(0, 0, 5.023832), App.Rotation())
sketch8.addGeometry(Part.LineSegment(Vector(-45.9, 55, 0), Vector(-45.9, 15, 0)), False)
sketch8.addGeometry(Part.ArcOfCircle(Part.Circle(Vector(-46.6, 15, 0), Vector(0, 0, 1), 0.8), math.radians(180), math.radians(360)), False)
sketch8.addGeometry(Part.LineSegment(Vector(-47.4, 15, 0), Vector(-47.4, 55, 0)), False)
sketch8.addGeometry(Part.ArcOfCircle(Part.Circle(Vector(-46.6, 55, 0), Vector(0, 0, 1), 0.8), math.radians(0), math.radians(180)), False)
sketch8.addGeometry(Part.LineSegment(Vector(-41.9, 55, 0), Vector(-41.9, 15, 0)), False)
sketch8.addGeometry(Part.ArcOfCircle(Part.Circle(Vector(-42.6, 15, 0), Vector(0, 0, 1), 0.8), math.radians(180), math.radians(360)), False)
sketch8.addGeometry(Part.LineSegment(Vector(-43.4, 15, 0), Vector(-43.4, 55, 0)), False)
sketch8.addGeometry(Part.ArcOfCircle(Part.Circle(Vector(-42.6, 55, 0), Vector(0, 0, 1), 0.8), math.radians(0), math.radians(180)), False)
sketch8.addGeometry(Part.LineSegment(Vector(-37.9, 55, 0), Vector(-37.9, 15, 0)), False)
sketch8.addGeometry(Part.ArcOfCircle(Part.Circle(Vector(-38.6, 15, 0), Vector(0, 0, 1), 0.8), math.radians(180), math.radians(360)), False)
sketch8.addGeometry(Part.LineSegment(Vector(-39.4, 15, 0), Vector(-39.4, 55, 0)), False)
sketch8.addGeometry(Part.ArcOfCircle(Part.Circle(Vector(-38.6, 55, 0), Vector(0, 0, 1), 0.8), math.radians(0), math.radians(180)), False)
sketch8.addGeometry(Part.LineSegment(Vector(-33.9, 55, 0), Vector(-33.9, 15, 0)), False)
sketch8.addGeometry(Part.ArcOfCircle(Part.Circle(Vector(-34.6, 15, 0), Vector(0, 0, 1), 0.8), math.radians(180), math.radians(360)), False)
sketch8.addGeometry(Part.LineSegment(Vector(-35.4, 15, 0), Vector(-35.4, 55, 0)), False)
sketch8.addGeometry(Part.ArcOfCircle(Part.Circle(Vector(-34.6, 55, 0), Vector(0, 0, 1), 0.8), math.radians(0), math.radians(180)), False)
sketch8.addGeometry(Part.LineSegment(Vector(-29.9, 55, 0), Vector(-29.9, 15, 0)), False)
sketch8.addGeometry(Part.ArcOfCircle(Part.Circle(Vector(-30.6, 15, 0), Vector(0, 0, 1), 0.8), math.radians(180), math.radians(360)), False)
sketch8.addGeometry(Part.LineSegment(Vector(-31.4, 15, 0), Vector(-31.4, 55, 0)), False)
sketch8.addGeometry(Part.ArcOfCircle(Part.Circle(Vector(-30.6, 55, 0), Vector(0, 0, 1), 0.8), math.radians(0), math.radians(180)), False)
sketch8.addGeometry(Part.LineSegment(Vector(-25.9, 55, 0), Vector(-25.9, 15, 0)), False)
sketch8.addGeometry(Part.ArcOfCircle(Part.Circle(Vector(-26.6, 15, 0), Vector(0, 0, 1), 0.8), math.radians(180), math.radians(360)), False)
sketch8.addGeometry(Part.LineSegment(Vector(-27.4, 15, 0), Vector(-27.4, 55, 0)), False)
sketch8.addGeometry(Part.ArcOfCircle(Part.Circle(Vector(-26.6, 55, 0), Vector(0, 0, 1), 0.8), math.radians(0), math.radians(180)), False)
sketch8.addGeometry(Part.LineSegment(Vector(-21.9, 55, 0), Vector(-21.9, 15, 0)), False)
sketch8.addGeometry(Part.ArcOfCircle(Part.Circle(Vector(-22.6, 15, 0), Vector(0, 0, 1), 0.8), math.radians(180), math.radians(360)), False)
sketch8.addGeometry(Part.LineSegment(Vector(-23.4, 15, 0), Vector(-23.4, 55, 0)), False)
sketch8.addGeometry(Part.ArcOfCircle(Part.Circle(Vector(-22.6, 55, 0), Vector(0, 0, 1), 0.8), math.radians(0), math.radians(180)), False)
sketch8.addGeometry(Part.LineSegment(Vector(-17.9, 55, 0), Vector(-17.9, 15, 0)), False)
sketch8.addGeometry(Part.ArcOfCircle(Part.Circle(Vector(-18.6, 15, 0), Vector(0, 0, 1), 0.8), math.radians(180), math.radians(360)), False)
sketch8.addGeometry(Part.LineSegment(Vector(-19.4, 15, 0), Vector(-19.4, 55, 0)), False)
sketch8.addGeometry(Part.ArcOfCircle(Part.Circle(Vector(-18.6, 55, 0), Vector(0, 0, 1), 0.8), math.radians(0), math.radians(180)), False)
sketch8.addGeometry(Part.LineSegment(Vector(-13.9, 55, 0), Vector(-13.9, 15, 0)), False)
sketch8.addGeometry(Part.ArcOfCircle(Part.Circle(Vector(-14.6, 15, 0), Vector(0, 0, 1), 0.8), math.radians(180), math.radians(360)), False)
sketch8.addGeometry(Part.LineSegment(Vector(-15.4, 15, 0), Vector(-15.4, 55, 0)), False)
sketch8.addGeometry(Part.ArcOfCircle(Part.Circle(Vector(-14.6, 55, 0), Vector(0, 0, 1), 0.8), math.radians(0), math.radians(180)), False)
sketch8.addGeometry(Part.LineSegment(Vector(-9.9, 55, 0), Vector(-9.9, 15, 0)), False)
sketch8.addGeometry(Part.ArcOfCircle(Part.Circle(Vector(-10.6, 15, 0), Vector(0, 0, 1), 0.8), math.radians(180), math.radians(360)), False)
sketch8.addGeometry(Part.LineSegment(Vector(-11.4, 15, 0), Vector(-11.4, 55, 0)), False)
sketch8.addGeometry(Part.ArcOfCircle(Part.Circle(Vector(-10.6, 55, 0), Vector(0, 0, 1), 0.8), math.radians(0), math.radians(180)), False)
sketch8.addConstraint(Sketcher.Constraint("Tangent", 0, 2, 1, 2))
sketch8.addConstraint(Sketcher.Constraint("Tangent", 1, 1, 2, 1))
sketch8.addConstraint(Sketcher.Constraint("Tangent", 2, 2, 3, 2))
sketch8.addConstraint(Sketcher.Constraint("Tangent", 3, 1, 0, 1))
sketch8.addConstraint(Sketcher.Constraint("Tangent", 4, 2, 5, 2))
sketch8.addConstraint(Sketcher.Constraint("Tangent", 5, 1, 6, 1))
sketch8.addConstraint(Sketcher.Constraint("Tangent", 6, 2, 7, 2))
sketch8.addConstraint(Sketcher.Constraint("Tangent", 7, 1, 4, 1))
sketch8.addConstraint(Sketcher.Constraint("Tangent", 8, 2, 9, 2))
sketch8.addConstraint(Sketcher.Constraint("Tangent", 9, 1, 10, 1))
sketch8.addConstraint(Sketcher.Constraint("Tangent", 10, 2, 11, 2))
sketch8.addConstraint(Sketcher.Constraint("Tangent", 11, 1, 8, 1))
sketch8.addConstraint(Sketcher.Constraint("Tangent", 12, 2, 13, 2))
sketch8.addConstraint(Sketcher.Constraint("Tangent", 13, 1, 14, 1))
sketch8.addConstraint(Sketcher.Constraint("Tangent", 14, 2, 15, 2))
sketch8.addConstraint(Sketcher.Constraint("Tangent", 15, 1, 12, 1))
sketch8.addConstraint(Sketcher.Constraint("Tangent", 16, 2, 17, 2))
sketch8.addConstraint(Sketcher.Constraint("Tangent", 17, 1, 18, 1))
sketch8.addConstraint(Sketcher.Constraint("Tangent", 18, 2, 19, 2))
sketch8.addConstraint(Sketcher.Constraint("Tangent", 19, 1, 16, 1))
sketch8.addConstraint(Sketcher.Constraint("Tangent", 20, 2, 21, 2))
sketch8.addConstraint(Sketcher.Constraint("Tangent", 21, 1, 22, 1))
sketch8.addConstraint(Sketcher.Constraint("Tangent", 22, 2, 23, 2))
sketch8.addConstraint(Sketcher.Constraint("Tangent", 23, 1, 20, 1))
sketch8.addConstraint(Sketcher.Constraint("Tangent", 24, 2, 25, 2))
sketch8.addConstraint(Sketcher.Constraint("Tangent", 25, 1, 26, 1))
sketch8.addConstraint(Sketcher.Constraint("Tangent", 26, 2, 27, 2))
sketch8.addConstraint(Sketcher.Constraint("Tangent", 27, 1, 24, 1))
sketch8.addConstraint(Sketcher.Constraint("Tangent", 28, 2, 29, 2))
sketch8.addConstraint(Sketcher.Constraint("Tangent", 29, 1, 30, 1))
sketch8.addConstraint(Sketcher.Constraint("Tangent", 30, 2, 31, 2))
sketch8.addConstraint(Sketcher.Constraint("Tangent", 31, 1, 28, 1))
sketch8.addConstraint(Sketcher.Constraint("Tangent", 32, 2, 33, 2))
sketch8.addConstraint(Sketcher.Constraint("Tangent", 33, 1, 34, 1))
sketch8.addConstraint(Sketcher.Constraint("Tangent", 34, 2, 35, 2))
sketch8.addConstraint(Sketcher.Constraint("Tangent", 35, 1, 32, 1))
sketch8.addConstraint(Sketcher.Constraint("Tangent", 36, 2, 37, 2))
sketch8.addConstraint(Sketcher.Constraint("Tangent", 37, 1, 38, 1))
sketch8.addConstraint(Sketcher.Constraint("Tangent", 38, 2, 39, 2))
sketch8.addConstraint(Sketcher.Constraint("Tangent", 39, 1, 36, 1))
sketch8.addConstraint(Sketcher.Constraint("Vertical", 0))
sketch8.addConstraint(Sketcher.Constraint("Vertical", 2))
sketch8.addConstraint(Sketcher.Constraint("Vertical", 4))
sketch8.addConstraint(Sketcher.Constraint("Vertical", 6))
sketch8.addConstraint(Sketcher.Constraint("Vertical", 8))
sketch8.addConstraint(Sketcher.Constraint("Vertical", 10))
sketch8.addConstraint(Sketcher.Constraint("Vertical", 12))
sketch8.addConstraint(Sketcher.Constraint("Vertical", 14))
sketch8.addConstraint(Sketcher.Constraint("Vertical", 16))
sketch8.addConstraint(Sketcher.Constraint("Vertical", 18))
sketch8.addConstraint(Sketcher.Constraint("Vertical", 20))
sketch8.addConstraint(Sketcher.Constraint("Vertical", 22))
sketch8.addConstraint(Sketcher.Constraint("Vertical", 24))
sketch8.addConstraint(Sketcher.Constraint("Vertical", 26))
sketch8.addConstraint(Sketcher.Constraint("Vertical", 28))
sketch8.addConstraint(Sketcher.Constraint("Vertical", 30))
sketch8.addConstraint(Sketcher.Constraint("Vertical", 32))
sketch8.addConstraint(Sketcher.Constraint("Vertical", 34))
sketch8.addConstraint(Sketcher.Constraint("Vertical", 36))
sketch8.addConstraint(Sketcher.Constraint("Vertical", 38))
sketch8.addConstraint(Sketcher.Constraint("Equal", 3, 5))
sketch8.addConstraint(Sketcher.Constraint("Equal", 7, 9))
sketch8.addConstraint(Sketcher.Constraint("Equal", 11, 13))
sketch8.addConstraint(Sketcher.Constraint("Equal", 15, 17))
sketch8.addConstraint(Sketcher.Constraint("Equal", 19, 21))
sketch8.addConstraint(Sketcher.Constraint("Equal", 23, 25))
sketch8.addConstraint(Sketcher.Constraint("Equal", 27, 29))
sketch8.addConstraint(Sketcher.Constraint("Equal", 31, 33))
sketch8.addConstraint(Sketcher.Constraint("Equal", 35, 37))
sketch8.addConstraint(Sketcher.Constraint("Horizontal", 1, 3, 5, 3))
sketch8.addConstraint(Sketcher.Constraint("Horizontal", 3, 3, 7, 3))
sketch8.addConstraint(Sketcher.Constraint("Horizontal", 5, 3, 9, 3))
sketch8.addConstraint(Sketcher.Constraint("Horizontal", 7, 3, 11, 3))
sketch8.addConstraint(Sketcher.Constraint("Horizontal", 9, 3, 13, 3))
sketch8.addConstraint(Sketcher.Constraint("Horizontal", 11, 3, 15, 3))
sketch8.addConstraint(Sketcher.Constraint("Horizontal", 13, 3, 17, 3))
sketch8.addConstraint(Sketcher.Constraint("Horizontal", 15, 3, 19, 3))
sketch8.addConstraint(Sketcher.Constraint("Horizontal", 17, 3, 21, 3))
sketch8.addConstraint(Sketcher.Constraint("Horizontal", 19, 3, 23, 3))
sketch8.addConstraint(Sketcher.Constraint("Horizontal", 21, 3, 25, 3))
sketch8.addConstraint(Sketcher.Constraint("Horizontal", 23, 3, 27, 3))
sketch8.addConstraint(Sketcher.Constraint("Horizontal", 25, 3, 29, 3))
sketch8.addConstraint(Sketcher.Constraint("Horizontal", 27, 3, 31, 3))
sketch8.addConstraint(Sketcher.Constraint("Horizontal", 29, 3, 33, 3))
sketch8.addConstraint(Sketcher.Constraint("Horizontal", 31, 3, 35, 3))
sketch8.addConstraint(Sketcher.Constraint("Horizontal", 33, 3, 37, 3))
sketch8.addConstraint(Sketcher.Constraint("Horizontal", 35, 3, 39, 3))
sketch8.addConstraint(Sketcher.Constraint("DistanceY", 0, 2, 0, 1, Q("40 mm")))
sketch8.addConstraint(Sketcher.Constraint("Radius", 1, Q("0.75 mm")))
sketch8.addConstraint(Sketcher.Constraint("DistanceY", -1, 1, 1, 3, Q("15 mm")))
sketch8.addConstraint(Sketcher.Constraint("DistanceX", 1, 3, 5, 3, Q("4 mm")))
sketch8.addConstraint(Sketcher.Constraint("DistanceX", 5, 3, 9, 3, Q("4 mm")))
sketch8.addConstraint(Sketcher.Constraint("DistanceX", 9, 3, 13, 3, Q("4 mm")))
sketch8.addConstraint(Sketcher.Constraint("DistanceX", 13, 3, 17, 3, Q("4 mm")))
sketch8.addConstraint(Sketcher.Constraint("DistanceX", 17, 3, 21, 3, Q("4 mm")))
sketch8.addConstraint(Sketcher.Constraint("DistanceX", 21, 3, 25, 3, Q("4 mm")))
sketch8.addConstraint(Sketcher.Constraint("DistanceX", 25, 3, 29, 3, Q("4 mm")))
sketch8.addConstraint(Sketcher.Constraint("DistanceX", 29, 3, 33, 3, Q("4 mm")))
sketch8.addConstraint(Sketcher.Constraint("DistanceX", 33, 3, 37, 3, Q("4 mm")))
sketch8.addConstraint(Sketcher.Constraint("DistanceX", 1, 3, -1, 1, Q("46.631944 mm")))
pocket3 = doc.addObject("PartDesign::Pocket", "Pocket002")
body.addObject(pocket3)
pocket3.Profile = sketch8
pocket3.Type = "ThroughAll"
pocket3.Midplane = True

sketch9 = doc.addObject("Sketcher::SketchObject", "Sketch008")
body.addObject(sketch9)
sketch9.AttachmentSupport = (doc.YZ_Plane, [""])
sketch9.MapMode = "FlatFace"
sketch9.AttachmentOffset = App.Placement(Vector(0, 0, 5.023832), App.Rotation())
sketch9.addGeometry(Part.Circle(Vector(-45.6, 60, 0), Vector(0, 0, 1), 3), False)
sketch9.addConstraint(Sketcher.Constraint("Diameter", 0, Q("6 mm")))
sketch9.addConstraint(Sketcher.Constraint("DistanceY", -1, 1, 0, 3, Q("60 mm")))
sketch9.addConstraint(Sketcher.Constraint("DistanceX", 0, 3, -1, 1, Q("45.631944 mm")))
pocket4 = doc.addObject("PartDesign::Pocket", "Pocket003")
body.addObject(pocket4)
pocket4.Profile = sketch9
pocket4.Type = "ThroughAll"
pocket4.Reversed = True
doc.recompute()

fillet = doc.addObject("PartDesign::Fillet", "Fillet")
body.addObject(fillet)
fillet.Base = (pocket4, edges_at(pocket4, [
    (125.024, 38.368, 30),
    (5.024, -11.632, 0),
    (5.024, 38.368, 30),
    (65.024, -61.632, 0),
    (5.024, -61.632, 30),
    (125.024, -61.632, 30),
    (125.024, -11.632, 0),
    (65.024, 38.368, 0),
    (7.524, -11.632, 2),
]))
fillet.Radius = 4
doc.recompute()

fillet2 = doc.addObject("PartDesign::Fillet", "Fillet001")
body.addObject(fillet2)
fillet2.Base = (fillet, edges_at(fillet, [
    (24.524, 35.868, 31),
    (112.524, 35.868, 31),
    (122.524, 35.868, 31),
    (122.524, -59.132, 31),
    (112.524, -59.132, 31),
    (105.524, -59.132, 31),
    (24.524, -59.132, 31),
    (17.524, -59.132, 31),
    (7.524, -59.132, 33),
    (7.524, 35.868, 33),
    (17.524, -52.132, 31),
    (24.524, -52.132, 31),
    (105.524, -52.132, 31),
    (112.524, -52.132, 31),
    (112.524, 28.868, 31),
    (105.524, 35.868, 31),
    (105.524, 28.868, 31),
    (24.524, 28.868, 31),
    (17.524, 35.868, 31),
    (17.524, 28.868, 31),
    (20.324, -26.632, 3),
    (20.324, 23.368, 3),
    (20.324, -19.632, 3),
    (20.324, 16.368, 3),
    (109.724, 16.368, 3),
    (109.724, -19.632, 3),
    (122.524, -11.632, 2),
    (117.524, 35.868, 2),
    (65.024, 35.868, 2),
    (65.024, -59.132, 2),
    (117.524, -59.132, 2),
    (14.524, 35.868, 2),
    (14.524, -59.132, 2),
    (8.695, -59.132, 3.172),
    (8.695, 35.868, 3.172),
    (109.724, -26.632, 3),
    (109.724, 23.368, 3),
]))
fillet2.Radius = 2

doc.recompute()
